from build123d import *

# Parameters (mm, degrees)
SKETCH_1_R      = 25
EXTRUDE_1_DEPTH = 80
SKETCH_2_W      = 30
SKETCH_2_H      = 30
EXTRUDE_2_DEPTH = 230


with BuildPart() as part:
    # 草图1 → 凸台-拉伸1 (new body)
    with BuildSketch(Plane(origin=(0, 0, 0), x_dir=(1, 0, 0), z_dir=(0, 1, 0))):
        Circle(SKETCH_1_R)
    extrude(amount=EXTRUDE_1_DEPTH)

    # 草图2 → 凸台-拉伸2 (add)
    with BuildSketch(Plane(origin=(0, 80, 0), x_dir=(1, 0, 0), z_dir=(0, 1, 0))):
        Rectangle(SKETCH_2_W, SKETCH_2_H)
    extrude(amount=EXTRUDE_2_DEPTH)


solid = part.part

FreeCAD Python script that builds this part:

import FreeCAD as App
import Part
import Sketcher

V = App.Vector


def add_polygon(sketch, points):
    """Adds a closed chain of lines whose ends are joined by coincident constraints."""
    first, n = sketch.GeometryCount, len(points)
    for a, b in zip(points, points[1:] + points[:1]):
        sketch.addGeometry(Part.LineSegment(App.Vector(*a, 0), App.Vector(*b, 0)), False)
    for i in range(n):
        sketch.addConstraint(Sketcher.Constraint("Coincident", first + i, 2, first + (i + 1) % n, 1))

doc = App.newDocument("Part")
params = doc.addObject("Spreadsheet::Sheet", "Params")
for row, (alias, value) in enumerate([
    ("sketch1_diameter", "50 mm"),
    ("pad1_length", "80 mm"),
    ("sketch2_width", "30 mm"),
    ("pad2_length", "230 mm"),
], start=1):
    params.set(f"A{row}", alias)
    params.set(f"B{row}", "=" + value)
    params.setAlias(f"B{row}", alias)

body = doc.addObject("PartDesign::Body", "Body")

# Sketch on XZ plane
sketch1 = doc.addObject("Sketcher::SketchObject", "Sketch")
body.addObject(sketch1)
sketch1.AttachmentSupport = (doc.XZ_Plane, [""])
sketch1.MapMode = "FlatFace"
sketch1.addGeometry(Part.Circle(V(0, 0, 0), V(0, 0, 1), 25), False)
sketch1.addConstraint([
    Sketcher.Constraint("Coincident", 0, 3, -1, 1),
    Sketcher.Constraint("Diameter", 0, 50.0),
])
sketch1.setExpression("Constraints[1]", "Params.sketch1_diameter")
pad1 = doc.addObject("PartDesign::Pad", "Pad")
body.addObject(pad1)
pad1.Profile = sketch1
pad1.setExpression("Length", "Params.pad1_length")
pad1.Reversed = True

# Sketch on XZ plane
sketch2 = doc.addObject("Sketcher::SketchObject", "Sketch001")
body.addObject(sketch2)
sketch2.AttachmentSupport = (doc.XZ_Plane, [""])
sketch2.MapMode = "FlatFace"
sketch2.AttachmentOffset = App.Placement(V(0, 0, -80), App.Rotation())
add_polygon(sketch2, [(-15, -15), (-15, 15), (15, 15), (15, -15)])  # lines 0-3
sketch2.addConstraint([
    Sketcher.Constraint("Vertical", 0),
    Sketcher.Constraint("Horizontal", 1),
    Sketcher.Constraint("Vertical", 2),
    Sketcher.Constraint("Horizontal", 3),
    Sketcher.Constraint("Symmetric", 0, 2, 2, 2, -1, 1),
    Sketcher.Constraint("Equal", 3, 0),
    Sketcher.Constraint("DistanceX", 1, 1, 1, 2, 30.0),
])
sketch2.setExpression("Constraints[10]", "Params.sketch2_width")
pad2 = doc.addObject("PartDesign::Pad", "Pad001")
body.addObject(pad2)
pad2.Profile = sketch2
pad2.setExpression("Length", "Params.pad2_length")
pad2.Reversed = True

doc.recompute()
